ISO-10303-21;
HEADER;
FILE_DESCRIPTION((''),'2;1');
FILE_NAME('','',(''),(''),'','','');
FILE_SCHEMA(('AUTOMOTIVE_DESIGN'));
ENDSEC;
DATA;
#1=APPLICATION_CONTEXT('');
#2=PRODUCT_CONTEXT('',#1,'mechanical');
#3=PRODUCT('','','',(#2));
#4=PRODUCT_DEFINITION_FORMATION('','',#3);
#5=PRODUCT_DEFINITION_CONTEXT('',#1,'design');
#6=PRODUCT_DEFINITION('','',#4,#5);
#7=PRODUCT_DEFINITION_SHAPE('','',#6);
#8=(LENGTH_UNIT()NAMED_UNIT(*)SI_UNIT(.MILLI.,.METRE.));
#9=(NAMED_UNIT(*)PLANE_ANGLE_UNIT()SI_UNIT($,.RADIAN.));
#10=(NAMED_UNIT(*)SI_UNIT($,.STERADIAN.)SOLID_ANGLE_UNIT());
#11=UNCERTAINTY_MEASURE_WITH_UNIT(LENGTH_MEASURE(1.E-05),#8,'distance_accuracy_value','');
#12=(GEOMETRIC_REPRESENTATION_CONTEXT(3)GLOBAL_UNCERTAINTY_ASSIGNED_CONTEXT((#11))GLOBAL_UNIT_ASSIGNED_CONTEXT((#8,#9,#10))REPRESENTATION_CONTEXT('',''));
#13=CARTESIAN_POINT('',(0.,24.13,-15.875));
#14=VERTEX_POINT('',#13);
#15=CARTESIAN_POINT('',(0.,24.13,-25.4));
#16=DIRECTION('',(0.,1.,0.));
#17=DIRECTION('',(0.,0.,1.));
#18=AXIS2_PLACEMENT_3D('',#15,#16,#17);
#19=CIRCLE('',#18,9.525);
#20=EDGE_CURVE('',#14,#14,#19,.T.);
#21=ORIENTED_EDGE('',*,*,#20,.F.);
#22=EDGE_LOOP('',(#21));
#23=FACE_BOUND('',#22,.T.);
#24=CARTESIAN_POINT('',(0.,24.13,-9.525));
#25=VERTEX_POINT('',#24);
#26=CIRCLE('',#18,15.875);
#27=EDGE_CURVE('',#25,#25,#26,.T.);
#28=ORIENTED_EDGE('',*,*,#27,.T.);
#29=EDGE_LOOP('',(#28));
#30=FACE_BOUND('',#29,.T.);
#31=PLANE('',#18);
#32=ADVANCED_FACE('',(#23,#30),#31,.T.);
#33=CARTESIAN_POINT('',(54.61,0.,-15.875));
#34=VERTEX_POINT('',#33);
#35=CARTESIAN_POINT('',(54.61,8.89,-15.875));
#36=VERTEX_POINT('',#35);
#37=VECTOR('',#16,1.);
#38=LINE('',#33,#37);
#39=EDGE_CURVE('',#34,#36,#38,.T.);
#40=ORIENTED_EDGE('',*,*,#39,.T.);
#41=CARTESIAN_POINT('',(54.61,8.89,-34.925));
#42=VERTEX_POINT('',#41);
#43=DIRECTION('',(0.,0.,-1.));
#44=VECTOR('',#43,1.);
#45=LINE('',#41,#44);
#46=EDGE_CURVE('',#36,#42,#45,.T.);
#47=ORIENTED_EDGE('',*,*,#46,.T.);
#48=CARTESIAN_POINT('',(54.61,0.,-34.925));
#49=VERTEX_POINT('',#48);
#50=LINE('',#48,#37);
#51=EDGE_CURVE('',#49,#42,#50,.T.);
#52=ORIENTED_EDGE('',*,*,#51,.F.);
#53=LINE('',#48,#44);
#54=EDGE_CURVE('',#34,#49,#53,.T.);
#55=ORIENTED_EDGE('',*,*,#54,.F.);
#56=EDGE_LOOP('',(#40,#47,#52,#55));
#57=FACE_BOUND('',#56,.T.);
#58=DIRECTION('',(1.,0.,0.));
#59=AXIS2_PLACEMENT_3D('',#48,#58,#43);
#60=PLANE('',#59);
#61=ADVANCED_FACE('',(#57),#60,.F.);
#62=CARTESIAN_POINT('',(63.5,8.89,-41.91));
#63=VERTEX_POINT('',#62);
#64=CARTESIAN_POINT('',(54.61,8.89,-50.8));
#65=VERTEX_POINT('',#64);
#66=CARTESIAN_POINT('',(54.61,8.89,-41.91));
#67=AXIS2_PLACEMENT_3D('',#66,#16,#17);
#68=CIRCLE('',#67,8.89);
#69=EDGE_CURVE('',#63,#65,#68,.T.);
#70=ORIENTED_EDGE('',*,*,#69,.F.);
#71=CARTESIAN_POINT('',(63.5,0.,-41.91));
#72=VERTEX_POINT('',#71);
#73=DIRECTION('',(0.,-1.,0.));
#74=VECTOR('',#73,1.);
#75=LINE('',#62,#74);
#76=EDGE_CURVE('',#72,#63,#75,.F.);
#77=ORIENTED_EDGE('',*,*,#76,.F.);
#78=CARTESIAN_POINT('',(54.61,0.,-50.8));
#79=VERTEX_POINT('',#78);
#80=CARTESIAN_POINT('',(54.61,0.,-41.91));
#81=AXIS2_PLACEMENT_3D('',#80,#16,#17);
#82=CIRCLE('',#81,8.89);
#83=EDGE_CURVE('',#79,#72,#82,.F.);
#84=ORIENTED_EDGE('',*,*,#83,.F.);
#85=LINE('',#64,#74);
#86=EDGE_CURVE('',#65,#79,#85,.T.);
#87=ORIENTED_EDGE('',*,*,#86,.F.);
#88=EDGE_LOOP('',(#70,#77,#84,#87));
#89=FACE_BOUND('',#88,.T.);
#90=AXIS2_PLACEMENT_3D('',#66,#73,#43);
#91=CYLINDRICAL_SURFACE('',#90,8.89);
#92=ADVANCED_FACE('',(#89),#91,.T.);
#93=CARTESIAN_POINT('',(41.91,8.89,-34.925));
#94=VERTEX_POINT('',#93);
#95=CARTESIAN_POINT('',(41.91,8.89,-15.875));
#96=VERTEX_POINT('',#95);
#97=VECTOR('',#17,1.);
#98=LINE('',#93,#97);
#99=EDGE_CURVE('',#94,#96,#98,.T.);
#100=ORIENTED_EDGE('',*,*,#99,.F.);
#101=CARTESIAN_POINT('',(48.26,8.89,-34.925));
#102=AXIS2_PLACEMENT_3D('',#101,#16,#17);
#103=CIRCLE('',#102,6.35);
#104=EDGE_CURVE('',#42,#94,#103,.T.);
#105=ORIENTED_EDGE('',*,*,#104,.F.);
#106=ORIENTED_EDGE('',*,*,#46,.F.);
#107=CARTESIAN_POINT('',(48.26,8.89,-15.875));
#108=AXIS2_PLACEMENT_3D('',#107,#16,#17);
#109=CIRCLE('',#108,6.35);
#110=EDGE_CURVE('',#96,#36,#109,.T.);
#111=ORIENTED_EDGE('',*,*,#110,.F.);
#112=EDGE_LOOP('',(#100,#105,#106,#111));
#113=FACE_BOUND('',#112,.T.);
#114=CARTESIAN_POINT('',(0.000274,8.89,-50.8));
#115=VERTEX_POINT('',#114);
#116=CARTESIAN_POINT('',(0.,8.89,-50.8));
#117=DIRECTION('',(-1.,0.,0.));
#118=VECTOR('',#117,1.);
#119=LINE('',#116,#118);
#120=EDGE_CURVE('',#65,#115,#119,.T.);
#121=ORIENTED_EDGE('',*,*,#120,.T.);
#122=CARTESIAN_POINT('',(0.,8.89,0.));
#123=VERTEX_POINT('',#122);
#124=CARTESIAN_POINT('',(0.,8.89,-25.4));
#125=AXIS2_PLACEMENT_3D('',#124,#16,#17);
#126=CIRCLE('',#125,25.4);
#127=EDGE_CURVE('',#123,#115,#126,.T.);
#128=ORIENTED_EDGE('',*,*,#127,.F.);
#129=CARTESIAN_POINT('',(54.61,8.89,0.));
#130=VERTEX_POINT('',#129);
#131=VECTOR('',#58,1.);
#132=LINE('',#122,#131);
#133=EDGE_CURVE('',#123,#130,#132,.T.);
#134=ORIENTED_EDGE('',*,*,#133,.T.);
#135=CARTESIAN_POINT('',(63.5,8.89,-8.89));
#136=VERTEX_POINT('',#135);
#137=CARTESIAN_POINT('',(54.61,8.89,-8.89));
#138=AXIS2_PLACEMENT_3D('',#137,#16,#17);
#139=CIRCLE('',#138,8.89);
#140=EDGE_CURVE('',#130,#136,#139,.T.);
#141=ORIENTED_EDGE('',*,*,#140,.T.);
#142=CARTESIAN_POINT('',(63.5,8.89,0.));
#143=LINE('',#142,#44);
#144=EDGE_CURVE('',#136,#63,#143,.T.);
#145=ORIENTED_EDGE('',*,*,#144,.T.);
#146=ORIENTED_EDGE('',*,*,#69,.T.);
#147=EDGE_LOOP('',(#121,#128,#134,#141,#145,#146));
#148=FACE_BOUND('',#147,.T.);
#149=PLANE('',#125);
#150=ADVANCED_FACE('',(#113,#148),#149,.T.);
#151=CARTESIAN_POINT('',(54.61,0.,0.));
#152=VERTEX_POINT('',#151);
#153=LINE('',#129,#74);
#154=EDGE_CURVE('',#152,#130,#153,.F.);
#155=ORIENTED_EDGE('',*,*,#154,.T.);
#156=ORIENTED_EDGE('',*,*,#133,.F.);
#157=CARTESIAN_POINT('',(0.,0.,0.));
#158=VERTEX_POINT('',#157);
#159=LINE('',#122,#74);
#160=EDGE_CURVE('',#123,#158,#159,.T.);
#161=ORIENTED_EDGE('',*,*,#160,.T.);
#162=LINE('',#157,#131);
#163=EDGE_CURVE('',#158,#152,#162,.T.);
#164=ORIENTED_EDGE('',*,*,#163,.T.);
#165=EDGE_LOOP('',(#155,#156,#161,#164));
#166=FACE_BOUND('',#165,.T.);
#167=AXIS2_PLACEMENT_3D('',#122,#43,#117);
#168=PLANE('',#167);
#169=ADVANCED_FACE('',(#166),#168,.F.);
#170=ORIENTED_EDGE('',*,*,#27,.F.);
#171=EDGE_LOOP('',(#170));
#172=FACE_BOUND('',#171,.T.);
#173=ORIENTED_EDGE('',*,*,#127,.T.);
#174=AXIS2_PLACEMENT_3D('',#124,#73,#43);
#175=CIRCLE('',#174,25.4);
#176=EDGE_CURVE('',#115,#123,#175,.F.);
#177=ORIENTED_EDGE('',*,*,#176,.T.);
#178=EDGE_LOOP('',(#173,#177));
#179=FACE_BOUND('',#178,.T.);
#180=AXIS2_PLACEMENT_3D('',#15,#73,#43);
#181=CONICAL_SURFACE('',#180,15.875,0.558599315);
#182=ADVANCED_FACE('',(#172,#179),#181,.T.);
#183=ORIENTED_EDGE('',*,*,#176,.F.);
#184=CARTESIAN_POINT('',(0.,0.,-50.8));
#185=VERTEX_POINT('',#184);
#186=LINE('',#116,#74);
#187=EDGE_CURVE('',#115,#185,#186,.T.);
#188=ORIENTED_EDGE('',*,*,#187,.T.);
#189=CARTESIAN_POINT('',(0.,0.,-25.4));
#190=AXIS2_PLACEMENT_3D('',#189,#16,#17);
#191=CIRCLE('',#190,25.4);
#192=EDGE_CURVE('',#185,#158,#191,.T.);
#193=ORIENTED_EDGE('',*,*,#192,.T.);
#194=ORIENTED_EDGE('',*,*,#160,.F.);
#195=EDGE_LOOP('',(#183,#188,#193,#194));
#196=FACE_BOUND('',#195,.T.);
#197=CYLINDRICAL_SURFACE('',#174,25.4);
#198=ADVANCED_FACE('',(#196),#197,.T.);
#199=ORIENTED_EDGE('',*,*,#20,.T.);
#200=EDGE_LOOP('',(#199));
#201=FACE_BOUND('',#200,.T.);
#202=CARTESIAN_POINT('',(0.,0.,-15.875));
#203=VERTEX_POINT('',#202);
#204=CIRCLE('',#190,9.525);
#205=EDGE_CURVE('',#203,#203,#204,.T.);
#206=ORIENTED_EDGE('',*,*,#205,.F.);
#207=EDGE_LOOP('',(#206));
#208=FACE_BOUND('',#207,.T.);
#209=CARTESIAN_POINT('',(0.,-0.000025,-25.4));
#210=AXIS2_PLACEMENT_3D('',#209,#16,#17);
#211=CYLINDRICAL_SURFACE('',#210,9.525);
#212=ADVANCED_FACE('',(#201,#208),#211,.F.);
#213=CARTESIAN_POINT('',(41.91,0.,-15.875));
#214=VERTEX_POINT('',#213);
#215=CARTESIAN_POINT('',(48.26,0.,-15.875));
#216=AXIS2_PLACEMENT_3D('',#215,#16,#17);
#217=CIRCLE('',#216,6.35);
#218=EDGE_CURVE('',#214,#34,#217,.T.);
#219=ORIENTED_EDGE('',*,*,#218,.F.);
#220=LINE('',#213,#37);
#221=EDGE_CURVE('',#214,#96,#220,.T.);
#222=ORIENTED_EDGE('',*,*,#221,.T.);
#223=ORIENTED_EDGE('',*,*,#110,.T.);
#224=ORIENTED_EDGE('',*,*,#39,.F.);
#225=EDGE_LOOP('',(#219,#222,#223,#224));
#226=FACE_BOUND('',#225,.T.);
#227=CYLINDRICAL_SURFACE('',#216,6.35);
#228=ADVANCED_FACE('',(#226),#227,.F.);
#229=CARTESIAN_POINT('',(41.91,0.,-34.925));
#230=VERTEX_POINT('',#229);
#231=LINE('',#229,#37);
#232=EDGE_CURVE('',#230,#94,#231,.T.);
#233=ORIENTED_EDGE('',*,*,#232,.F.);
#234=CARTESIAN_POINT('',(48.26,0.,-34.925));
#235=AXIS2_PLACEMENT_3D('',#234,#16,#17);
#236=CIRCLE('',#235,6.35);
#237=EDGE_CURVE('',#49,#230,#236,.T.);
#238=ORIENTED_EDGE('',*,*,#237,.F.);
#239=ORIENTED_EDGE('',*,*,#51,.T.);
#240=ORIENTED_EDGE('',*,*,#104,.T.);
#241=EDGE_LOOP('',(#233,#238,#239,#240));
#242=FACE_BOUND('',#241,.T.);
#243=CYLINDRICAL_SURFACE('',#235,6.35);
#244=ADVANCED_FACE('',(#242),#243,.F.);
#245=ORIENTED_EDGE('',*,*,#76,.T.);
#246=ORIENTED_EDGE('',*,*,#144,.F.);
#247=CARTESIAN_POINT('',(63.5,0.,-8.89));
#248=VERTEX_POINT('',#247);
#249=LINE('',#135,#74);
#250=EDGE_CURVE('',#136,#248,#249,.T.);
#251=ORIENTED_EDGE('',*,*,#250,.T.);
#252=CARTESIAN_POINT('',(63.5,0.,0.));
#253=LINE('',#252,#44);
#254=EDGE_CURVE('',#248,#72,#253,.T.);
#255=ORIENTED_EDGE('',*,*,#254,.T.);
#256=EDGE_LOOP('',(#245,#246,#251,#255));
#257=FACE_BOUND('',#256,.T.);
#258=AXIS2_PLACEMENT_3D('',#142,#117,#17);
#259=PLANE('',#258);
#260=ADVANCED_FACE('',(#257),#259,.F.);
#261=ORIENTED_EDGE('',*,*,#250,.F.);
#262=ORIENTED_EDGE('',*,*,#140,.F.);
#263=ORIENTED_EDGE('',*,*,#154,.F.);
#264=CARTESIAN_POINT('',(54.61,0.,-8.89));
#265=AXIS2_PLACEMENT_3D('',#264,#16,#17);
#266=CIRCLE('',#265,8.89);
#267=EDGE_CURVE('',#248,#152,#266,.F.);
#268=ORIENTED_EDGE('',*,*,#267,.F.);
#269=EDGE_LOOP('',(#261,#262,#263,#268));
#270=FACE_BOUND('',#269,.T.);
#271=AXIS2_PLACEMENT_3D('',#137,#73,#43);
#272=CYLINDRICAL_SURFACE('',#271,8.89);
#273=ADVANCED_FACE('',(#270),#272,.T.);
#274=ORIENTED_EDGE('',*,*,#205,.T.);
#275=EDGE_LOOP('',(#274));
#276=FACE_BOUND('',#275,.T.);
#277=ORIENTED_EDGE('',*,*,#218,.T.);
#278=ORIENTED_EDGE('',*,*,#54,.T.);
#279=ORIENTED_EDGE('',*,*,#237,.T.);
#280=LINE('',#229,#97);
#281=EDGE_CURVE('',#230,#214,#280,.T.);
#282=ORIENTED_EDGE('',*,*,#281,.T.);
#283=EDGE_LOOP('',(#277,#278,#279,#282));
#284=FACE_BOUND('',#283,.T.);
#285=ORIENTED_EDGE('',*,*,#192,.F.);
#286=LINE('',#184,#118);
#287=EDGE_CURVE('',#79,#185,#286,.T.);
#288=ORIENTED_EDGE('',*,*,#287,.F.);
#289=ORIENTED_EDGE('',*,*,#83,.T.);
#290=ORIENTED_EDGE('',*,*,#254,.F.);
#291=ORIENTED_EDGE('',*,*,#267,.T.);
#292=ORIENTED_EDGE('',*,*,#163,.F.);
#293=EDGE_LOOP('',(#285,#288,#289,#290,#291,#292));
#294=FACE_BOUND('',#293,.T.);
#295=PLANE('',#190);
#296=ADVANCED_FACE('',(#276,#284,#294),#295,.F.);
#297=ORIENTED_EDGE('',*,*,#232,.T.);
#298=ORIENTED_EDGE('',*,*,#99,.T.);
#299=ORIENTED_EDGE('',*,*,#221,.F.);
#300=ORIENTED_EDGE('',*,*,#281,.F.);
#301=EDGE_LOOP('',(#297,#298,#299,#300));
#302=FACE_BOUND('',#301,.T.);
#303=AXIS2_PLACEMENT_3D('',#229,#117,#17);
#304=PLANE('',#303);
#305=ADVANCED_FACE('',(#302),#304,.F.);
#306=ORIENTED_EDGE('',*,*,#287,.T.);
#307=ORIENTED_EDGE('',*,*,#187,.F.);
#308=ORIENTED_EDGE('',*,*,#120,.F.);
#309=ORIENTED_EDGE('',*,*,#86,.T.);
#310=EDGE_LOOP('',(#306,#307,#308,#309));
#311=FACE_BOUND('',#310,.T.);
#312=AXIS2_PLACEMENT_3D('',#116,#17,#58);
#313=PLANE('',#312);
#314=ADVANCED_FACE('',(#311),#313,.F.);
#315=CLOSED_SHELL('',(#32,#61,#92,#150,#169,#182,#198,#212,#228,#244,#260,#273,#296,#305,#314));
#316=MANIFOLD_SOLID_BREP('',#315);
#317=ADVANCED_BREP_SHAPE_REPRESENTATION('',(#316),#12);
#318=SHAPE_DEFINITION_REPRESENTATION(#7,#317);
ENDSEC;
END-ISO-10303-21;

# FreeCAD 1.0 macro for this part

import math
import FreeCAD as App
import Part
import Sketcher
from FreeCAD import Vector
Q = App.Units.Quantity


def edges_at(feature, points):
    """Names of the edges that pass closest to the given points."""
    edges = feature.Shape.Edges
    near = lambda p: min(range(len(edges)), key=lambda i: edges[i].distToShape(Part.Vertex(*p))[0])
    return sorted({f"Edge{near(p) + 1}" for p in points})

doc = App.newDocument("Part")
params = doc.addObject("Spreadsheet::Sheet", "Params")
for row, (alias, value) in enumerate([
    ("sketch1_radius", "1 in"),
    ("sketch1_width", "2.5 in"),
    ("pad1_length", "0.35 in"),
    ("sketch2_radius", "0.25 in"),
    ("sketch2_height", "0.75 in"),
    ("pocket1_length", "0.35 in"),
    ("fillet_radius", "0.35 in"),
    ("sketch3_diameter", "2 in"),
    ("sketch4_diameter", "1.25 in"),
    ("sketch5_diameter", "0.75 in"),
], start=1):
    params.set(f"A{row}", alias)
    params.set(f"B{row}", "=" + value)
    params.setAlias(f"B{row}", alias)

body = doc.addObject("PartDesign::Body", "Body")

# Sketch on XZ plane
sketch1 = doc.addObject("Sketcher::SketchObject", "Sketch")
body.addObject(sketch1)
sketch1.AttachmentSupport = (doc.XZ_Plane, [""])
sketch1.MapMode = "FlatFace"
sketch1.addGeometry(Part.LineSegment(Vector(0, 0, 0), Vector(64, 0, 0)), False)
sketch1.addGeometry(Part.LineSegment(Vector(64, 0, 0), Vector(64, -51, 0)), False)
sketch1.addGeometry(Part.LineSegment(Vector(64, -51, 0), Vector(0, -51, 0)), False)
sketch1.addGeometry(Part.ArcOfCircle(Part.Circle(Vector(0, -25, 0), Vector(0, 0, 1), 25), math.radians(90), math.radians(270)), False)
sketch1.addConstraint(Sketcher.Constraint("Coincident", 0, 2, 1, 1))
sketch1.addConstraint(Sketcher.Constraint("Coincident", 1, 2, 2, 1))
sketch1.addConstraint(Sketcher.Constraint("Tangent", 2, 2, 3, 2))
sketch1.addConstraint(Sketcher.Constraint("Tangent", 3, 1, 0, 1))
sketch1.addConstraint(Sketcher.Constraint("Horizontal", 0))
sketch1.addConstraint(Sketcher.Constraint("Vertical", 1))
sketch1.addConstraint(Sketcher.Constraint("Horizontal", 2))
sketch1.addConstraint(Sketcher.Constraint("Coincident", 3, 1, -1, 1))
sketch1.addConstraint(Sketcher.Constraint("Radius", 3, Q("1 in")))
sketch1.addConstraint(Sketcher.Constraint("DistanceX", 0, 1, 0, 2, Q("2.5 in")))
sketch1.setExpression("Constraints[8]", "Params.sketch1_radius")
sketch1.setExpression("Constraints[9]", "Params.sketch1_width")
pad1 = doc.addObject("PartDesign::Pad", "Pad")
body.addObject(pad1)
pad1.Profile = sketch1
pad1.setExpression("Length", "Params.pad1_length")
pad1.Reversed = True

# Sketch on XZ plane
sketch2 = doc.addObject("Sketcher::SketchObject", "Sketch001")
body.addObject(sketch2)
sketch2.AttachmentSupport = (doc.XZ_Plane, [""])
sketch2.MapMode = "FlatFace"
sketch2.AttachmentOffset = App.Placement(Vector(0, 0, -0.35 * 25.4), App.Rotation())
sketch2.addGeometry(Part.LineSegment(Vector(42, -35, 0), Vector(42, -16, 0)), False)
sketch2.addGeometry(Part.ArcOfCircle(Part.Circle(Vector(48, -16, 0), Vector(0, 0, 1), 6), math.radians(0), math.radians(180)), False)
sketch2.addGeometry(Part.LineSegment(Vector(55, -16, 0), Vector(55, -35, 0)), False)
sketch2.addGeometry(Part.ArcOfCircle(Part.Circle(Vector(48, -35, 0), Vector(0, 0, 1), 6), math.radians(180), math.radians(360)), False)
sketch2.addConstraint(Sketcher.Constraint("Tangent", 0, 2, 1, 2))
sketch2.addConstraint(Sketcher.Constraint("Tangent", 1, 1, 2, 1))
sketch2.addConstraint(Sketcher.Constraint("Tangent", 2, 2, 3, 2))
sketch2.addConstraint(Sketcher.Constraint("Tangent", 3, 1, 0, 1))
sketch2.addConstraint(Sketcher.Constraint("Vertical", 0))
sketch2.addConstraint(Sketcher.Constraint("Vertical", 2))
sketch2.addConstraint(Sketcher.Constraint("Radius", 1, Q("0.25 in")))
sketch2.addConstraint(Sketcher.Constraint("DistanceY", 0, 1, 0, 2, Q("0.75 in")))
sketch2.addConstraint(Sketcher.Constraint("DistanceX", -1, 1, 1, 3, Q("1.9 in")))
sketch2.addConstraint(Sketcher.Constraint("DistanceY", 1, 3, -1, 1, Q("0.625 in")))
sketch2.setExpression("Constraints[6]", "Params.sketch2_radius")
sketch2.setExpression("Constraints[7]", "Params.sketch2_height")
pocket1 = doc.addObject("PartDesign::Pocket", "Pocket")
body.addObject(pocket1)
pocket1.Profile = sketch2
pocket1.setExpression("Length", "Params.pocket1_length")
pocket1.Reversed = True
doc.recompute()

fillet = doc.addObject("PartDesign::Fillet", "Fillet")
body.addObject(fillet)
fillet.Base = (pocket1, edges_at(pocket1, [(63.5, 4.445, -50.8), (63.5, 4.445, 0)]))
fillet.setExpression("Radius", "Params.fillet_radius")

# Sketch on XZ plane
sketch3 = doc.addObject("Sketcher::SketchObject", "Sketch002")
body.addObject(sketch3)
sketch3.AttachmentSupport = (doc.XZ_Plane, [""])
sketch3.MapMode = "FlatFace"
sketch3.AttachmentOffset = App.Placement(Vector(0, 0, -0.35 * 25.4), App.Rotation())
sketch3.addGeometry(Part.Circle(Vector(0, -25, 0), Vector(0, 0, 1), 25), False)
sketch3.addConstraint(Sketcher.Constraint("PointOnObject", 0, 3, -2))
sketch3.addConstraint(Sketcher.Constraint("Diameter", 0, Q("2 in")))
sketch3.addConstraint(Sketcher.Constraint("DistanceY", 0, 3, -1, 1, Q("1 in")))
sketch3.setExpression("Constraints[1]", "Params.sketch3_diameter")

# Sketch on XZ plane
sketch4 = doc.addObject("Sketcher::SketchObject", "Sketch003")
body.addObject(sketch4)
sketch4.AttachmentSupport = (doc.XZ_Plane, [""])
sketch4.MapMode = "FlatFace"
sketch4.AttachmentOffset = App.Placement(Vector(0, 0, -0.95 * 25.4), App.Rotation())
sketch4.addGeometry(Part.Circle(Vector(0, -25, 0), Vector(0, 0, 1), 16), False)
sketch4.addConstraint(Sketcher.Constraint("PointOnObject", 0, 3, -2))
sketch4.addConstraint(Sketcher.Constraint("Diameter", 0, Q("1.25 in")))
sketch4.addConstraint(Sketcher.Constraint("DistanceY", 0, 3, -1, 1, Q("1 in")))
sketch4.setExpression("Constraints[1]", "Params.sketch4_diameter")

additiveloft = doc.addObject("PartDesign::AdditiveLoft", "AdditiveLoft")
body.addObject(additiveloft)
additiveloft.Profile = sketch3
additiveloft.Sections = [sketch4]

# Sketch on XZ plane
sketch5 = doc.addObject("Sketcher::SketchObject", "Sketch004")
body.addObject(sketch5)
sketch5.AttachmentSupport = (doc.XZ_Plane, [""])
sketch5.MapMode = "FlatFace"
sketch5.AttachmentOffset = App.Placement(Vector(0, 0, -0.95 * 25.4), App.Rotation())
sketch5.addGeometry(Part.Circle(Vector(0, -25, 0), Vector(0, 0, 1), 10), False)
sketch5.addConstraint(Sketcher.Constraint("PointOnObject", 0, 3, -2))
sketch5.addConstraint(Sketcher.Constraint("Diameter", 0, Q("0.75 in")))
sketch5.addConstraint(Sketcher.Constraint("DistanceY", 0, 3, -1, 1, Q("1 in")))
sketch5.setExpression("Constraints[1]", "Params.sketch5_diameter")
pocket2 = doc.addObject("PartDesign::Pocket", "Pocket001")
body.addObject(pocket2)
pocket2.Profile = sketch5
pocket2.Type = "ThroughAll"
pocket2.Reversed = True

doc.recompute()
